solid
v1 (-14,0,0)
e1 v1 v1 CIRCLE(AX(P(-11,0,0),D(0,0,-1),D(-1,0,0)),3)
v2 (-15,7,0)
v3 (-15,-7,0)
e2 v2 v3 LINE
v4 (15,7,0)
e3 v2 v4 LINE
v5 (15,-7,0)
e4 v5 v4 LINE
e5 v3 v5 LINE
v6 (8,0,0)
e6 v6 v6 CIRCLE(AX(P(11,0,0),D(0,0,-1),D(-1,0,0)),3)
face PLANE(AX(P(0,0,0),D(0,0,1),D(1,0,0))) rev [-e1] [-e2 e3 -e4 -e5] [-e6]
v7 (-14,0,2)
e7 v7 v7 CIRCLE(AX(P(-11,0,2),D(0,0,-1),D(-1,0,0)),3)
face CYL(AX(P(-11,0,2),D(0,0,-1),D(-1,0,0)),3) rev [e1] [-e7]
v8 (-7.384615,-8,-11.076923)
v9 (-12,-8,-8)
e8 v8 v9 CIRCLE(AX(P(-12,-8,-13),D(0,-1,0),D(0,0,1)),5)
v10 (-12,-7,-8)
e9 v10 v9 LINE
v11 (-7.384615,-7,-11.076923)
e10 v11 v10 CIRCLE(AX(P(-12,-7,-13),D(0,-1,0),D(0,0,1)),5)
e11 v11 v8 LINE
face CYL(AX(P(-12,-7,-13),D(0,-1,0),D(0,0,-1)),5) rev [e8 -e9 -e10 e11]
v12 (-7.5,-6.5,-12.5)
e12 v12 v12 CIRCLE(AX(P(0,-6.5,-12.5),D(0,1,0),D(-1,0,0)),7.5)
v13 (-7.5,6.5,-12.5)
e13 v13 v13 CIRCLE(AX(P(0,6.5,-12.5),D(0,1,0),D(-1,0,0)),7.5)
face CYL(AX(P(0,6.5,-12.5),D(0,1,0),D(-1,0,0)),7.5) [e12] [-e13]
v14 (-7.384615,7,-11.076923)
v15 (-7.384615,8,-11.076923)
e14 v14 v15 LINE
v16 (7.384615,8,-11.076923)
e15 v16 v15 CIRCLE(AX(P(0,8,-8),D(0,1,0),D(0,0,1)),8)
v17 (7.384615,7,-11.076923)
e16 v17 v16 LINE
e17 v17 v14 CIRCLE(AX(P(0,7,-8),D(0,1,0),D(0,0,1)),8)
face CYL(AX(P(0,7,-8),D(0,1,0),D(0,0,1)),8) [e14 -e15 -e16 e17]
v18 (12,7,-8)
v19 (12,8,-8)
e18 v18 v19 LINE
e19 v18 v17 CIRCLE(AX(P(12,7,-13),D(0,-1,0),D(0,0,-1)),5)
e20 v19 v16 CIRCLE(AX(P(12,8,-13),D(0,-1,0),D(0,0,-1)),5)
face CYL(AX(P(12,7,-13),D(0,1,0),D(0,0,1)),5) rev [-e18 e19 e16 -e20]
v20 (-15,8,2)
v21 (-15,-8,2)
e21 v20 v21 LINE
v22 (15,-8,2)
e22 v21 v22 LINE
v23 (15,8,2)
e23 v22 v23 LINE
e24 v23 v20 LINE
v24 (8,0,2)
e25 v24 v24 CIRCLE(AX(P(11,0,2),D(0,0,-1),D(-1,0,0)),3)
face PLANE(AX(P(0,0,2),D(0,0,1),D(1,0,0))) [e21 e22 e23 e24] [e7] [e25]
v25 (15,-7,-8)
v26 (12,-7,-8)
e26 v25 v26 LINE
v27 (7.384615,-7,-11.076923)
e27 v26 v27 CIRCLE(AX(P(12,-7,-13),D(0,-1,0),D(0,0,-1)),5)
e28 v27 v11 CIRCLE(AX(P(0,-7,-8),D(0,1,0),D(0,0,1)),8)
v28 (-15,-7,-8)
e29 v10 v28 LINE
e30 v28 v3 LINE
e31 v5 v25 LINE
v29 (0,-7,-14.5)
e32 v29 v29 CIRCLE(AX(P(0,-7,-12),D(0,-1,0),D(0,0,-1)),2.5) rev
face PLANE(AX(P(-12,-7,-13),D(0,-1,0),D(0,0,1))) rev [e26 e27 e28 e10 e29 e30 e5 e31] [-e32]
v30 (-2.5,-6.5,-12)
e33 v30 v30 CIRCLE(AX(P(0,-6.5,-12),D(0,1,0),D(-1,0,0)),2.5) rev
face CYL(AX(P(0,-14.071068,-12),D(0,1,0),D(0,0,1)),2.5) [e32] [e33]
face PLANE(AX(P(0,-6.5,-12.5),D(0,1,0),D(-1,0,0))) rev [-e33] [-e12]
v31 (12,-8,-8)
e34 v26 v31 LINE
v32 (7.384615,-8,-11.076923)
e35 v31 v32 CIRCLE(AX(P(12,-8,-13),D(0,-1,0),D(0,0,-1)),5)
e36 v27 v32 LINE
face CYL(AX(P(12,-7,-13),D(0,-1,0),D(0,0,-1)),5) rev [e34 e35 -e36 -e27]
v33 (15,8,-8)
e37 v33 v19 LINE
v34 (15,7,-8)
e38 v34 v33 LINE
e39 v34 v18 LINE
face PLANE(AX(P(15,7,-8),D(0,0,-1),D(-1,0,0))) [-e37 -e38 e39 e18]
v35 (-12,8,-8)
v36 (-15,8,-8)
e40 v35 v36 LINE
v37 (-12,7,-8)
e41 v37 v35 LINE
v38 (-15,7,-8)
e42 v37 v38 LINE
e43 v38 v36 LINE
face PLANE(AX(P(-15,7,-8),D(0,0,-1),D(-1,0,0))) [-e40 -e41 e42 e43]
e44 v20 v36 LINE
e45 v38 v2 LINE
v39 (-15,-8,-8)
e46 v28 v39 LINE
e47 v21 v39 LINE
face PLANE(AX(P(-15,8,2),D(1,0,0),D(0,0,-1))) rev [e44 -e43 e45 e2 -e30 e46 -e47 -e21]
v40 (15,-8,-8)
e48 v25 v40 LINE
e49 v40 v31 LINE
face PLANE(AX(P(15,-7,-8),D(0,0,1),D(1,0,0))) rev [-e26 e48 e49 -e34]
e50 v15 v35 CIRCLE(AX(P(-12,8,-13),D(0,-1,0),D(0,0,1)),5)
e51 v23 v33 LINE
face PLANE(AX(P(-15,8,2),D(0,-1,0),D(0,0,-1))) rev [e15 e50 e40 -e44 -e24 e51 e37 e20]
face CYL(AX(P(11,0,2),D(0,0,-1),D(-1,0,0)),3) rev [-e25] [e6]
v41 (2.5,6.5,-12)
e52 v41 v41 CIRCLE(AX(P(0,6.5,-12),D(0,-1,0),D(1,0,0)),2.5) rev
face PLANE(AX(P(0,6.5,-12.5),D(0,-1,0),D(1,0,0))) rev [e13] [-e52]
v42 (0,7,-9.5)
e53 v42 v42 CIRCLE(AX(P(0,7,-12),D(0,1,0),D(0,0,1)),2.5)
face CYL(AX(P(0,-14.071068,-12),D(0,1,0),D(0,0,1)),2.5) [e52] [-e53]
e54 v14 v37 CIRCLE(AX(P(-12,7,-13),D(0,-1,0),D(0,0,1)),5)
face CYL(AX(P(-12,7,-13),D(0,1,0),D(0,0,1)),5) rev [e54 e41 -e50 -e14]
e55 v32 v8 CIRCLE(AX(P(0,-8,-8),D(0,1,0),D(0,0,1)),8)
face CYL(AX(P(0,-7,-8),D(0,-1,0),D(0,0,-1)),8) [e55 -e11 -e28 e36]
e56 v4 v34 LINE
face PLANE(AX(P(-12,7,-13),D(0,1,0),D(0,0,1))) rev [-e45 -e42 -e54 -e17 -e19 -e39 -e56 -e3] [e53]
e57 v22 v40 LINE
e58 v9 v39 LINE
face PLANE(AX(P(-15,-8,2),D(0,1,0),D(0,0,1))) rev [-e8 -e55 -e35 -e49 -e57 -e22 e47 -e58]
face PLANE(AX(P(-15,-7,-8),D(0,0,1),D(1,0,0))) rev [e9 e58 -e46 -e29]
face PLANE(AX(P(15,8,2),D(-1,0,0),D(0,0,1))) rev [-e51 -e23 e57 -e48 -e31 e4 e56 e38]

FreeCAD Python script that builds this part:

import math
import FreeCAD as App
import Part
import Sketcher

V = App.Vector
Q = App.Units.Quantity

doc = App.newDocument("Part")
params = doc.addObject("Spreadsheet::Sheet", "Params")
for row, (alias, value) in enumerate([
    ("sketch1_width", "30 mm"),
    ("sketch1_height", "16 mm"),
    ("pad1_length", "2 mm"),
    ("sketch2_radius", "5 mm"),
    ("sketch2_radius2", "8 mm"),
    ("sketch2_width", "30 mm"),
    ("sketch2_height", "8 mm"),
    ("pad2_length", "1 mm"),
    ("sketch3_diameter", "5 mm"),
    ("pad3_length", "15 mm"),
    ("sketch4_height", "13 mm"),
    ("sketch4_width", "7.5 mm"),
    ("revolution_angle", "360 deg"),
    ("sketch5_diameter", "6 mm"),
], start=1):
    params.set(f"A{row}", alias)
    params.set(f"B{row}", "=" + value)
    params.setAlias(f"B{row}", alias)

body = doc.addObject("PartDesign::Body", "Body")

sketch1 = body.newObject("Sketcher::SketchObject", "Sketch")
sketch1.AttachmentSupport = (doc.getObject("XY_Plane"), [""])
sketch1.MapMode = "FlatFace"
sketch1.addGeometry([
    Part.LineSegment(V(-15, 8, 0), V(-15, -8, 0)),
    Part.LineSegment(V(-15, -8, 0), V(15, -8, 0)),
    Part.LineSegment(V(15, -8, 0), V(15, 8, 0)),
    Part.LineSegment(V(15, 8, 0), V(-15, 8, 0)),
], False)
sketch1.addConstraint([
    Sketcher.Constraint("Coincident", 0, 2, 1, 1),
    Sketcher.Constraint("Coincident", 1, 2, 2, 1),
    Sketcher.Constraint("Coincident", 2, 2, 3, 1),
    Sketcher.Constraint("Coincident", 3, 2, 0, 1),
    Sketcher.Constraint("Vertical", 0),
    Sketcher.Constraint("Horizontal", 1),
    Sketcher.Constraint("Vertical", 2),
    Sketcher.Constraint("Horizontal", 3),
    Sketcher.Constraint("Symmetric", 0, 2, 2, 2, -1, 1),
    Sketcher.Constraint("DistanceX", 1, 1, 1, 2, Q("30 mm")),
    Sketcher.Constraint("DistanceY", 0, 2, 0, 1, Q("16 mm")),
])
sketch1.setExpression("Constraints[9]", "Params.sketch1_width")
sketch1.setExpression("Constraints[10]", "Params.sketch1_height")
pad1 = body.newObject("PartDesign::Pad", "Pad")
pad1.Profile = sketch1
pad1.setExpression("Length", "Params.pad1_length")

sketch2 = body.newObject("Sketcher::SketchObject", "Sketch001")
sketch2.AttachmentSupport = (doc.getObject("XZ_Plane"), [""])
sketch2.MapMode = "FlatFace"
sketch2.AttachmentOffset = App.Placement(V(0, 0, -8), App.Rotation())
sketch2.addGeometry([
    Part.LineSegment(V(-15, 0, 0), V(15, 0, 0)),
    Part.LineSegment(V(15, 0, 0), V(15, -8, 0)),
    Part.LineSegment(V(15, -8, 0), V(12, -8, 0)),
    Part.ArcOfCircle(Part.Circle(V(12, -13, 0), V(0, 0, 1), 5), math.radians(90), math.radians(157)),
    Part.ArcOfCircle(Part.Circle(V(0, -8, 0), V(0, 0, 1), 8), math.radians(-157), math.radians(-23)),
    Part.ArcOfCircle(Part.Circle(V(-12, -13, 0), V(0, 0, 1), 5), math.radians(23), math.radians(90)),
    Part.LineSegment(V(-12, -8, 0), V(-15, -8, 0)),
    Part.LineSegment(V(-15, -8, 0), V(-15, 0, 0)),
], False)
sketch2.addConstraint([
    Sketcher.Constraint("Coincident", 0, 2, 1, 1),
    Sketcher.Constraint("Coincident", 1, 2, 2, 1),
    Sketcher.Constraint("Tangent", 2, 2, 3, 1),
    Sketcher.Constraint("Tangent", 3, 2, 4, 2),
    Sketcher.Constraint("Tangent", 4, 1, 5, 1),
    Sketcher.Constraint("Tangent", 5, 2, 6, 1),
    Sketcher.Constraint("Coincident", 6, 2, 7, 1),
    Sketcher.Constraint("Coincident", 7, 2, 0, 1),
    Sketcher.Constraint("Horizontal", 0),
    Sketcher.Constraint("Vertical", 1),
    Sketcher.Constraint("Horizontal", 2),
    Sketcher.Constraint("Horizontal", 6),
    Sketcher.Constraint("Vertical", 7),
    Sketcher.Constraint("Equal", 3, 5),
    Sketcher.Constraint("Symmetric", 0, 2, 7, 2, -1, 1),
    Sketcher.Constraint("Symmetric", 3, 3, 5, 3, -2),
    Sketcher.Constraint("Horizontal", 4, 3, 1, 2),
    Sketcher.Constraint("Radius", 3, Q("5 mm")),
    Sketcher.Constraint("Radius", 4, Q("8 mm")),
    Sketcher.Constraint("DistanceX", 0, 1, 0, 2, Q("30 mm")),
    Sketcher.Constraint("DistanceY", 1, 2, 1, 1, Q("8 mm")),
])
sketch2.setExpression("Constraints[17]", "Params.sketch2_radius")
sketch2.setExpression("Constraints[18]", "Params.sketch2_radius2")
sketch2.setExpression("Constraints[19]", "Params.sketch2_width")
sketch2.setExpression("Constraints[20]", "Params.sketch2_height")
pad2 = body.newObject("PartDesign::Pad", "Pad001")
pad2.Profile = sketch2
pad2.setExpression("Length", "Params.pad2_length")
doc.recompute()

mirrored = body.newObject("PartDesign::Mirrored", "Mirrored")
mirrored.Originals = [pad2]
mirrored.MirrorPlane = (doc.getObject("XZ_Plane"), [""])
body.Tip = mirrored

sketch3 = body.newObject("Sketcher::SketchObject", "Sketch002")
sketch3.AttachmentSupport = (doc.getObject("XZ_Plane"), [""])
sketch3.MapMode = "FlatFace"
sketch3.AttachmentOffset = App.Placement(V(0, 0, -8), App.Rotation())
sketch3.addGeometry(Part.Circle(V(0, -12, 0), V(0, 0, 1), 2.5), False)
sketch3.addConstraint([
    Sketcher.Constraint("PointOnObject", 0, 3, -2),
    Sketcher.Constraint("Diameter", 0, Q("5 mm")),
    Sketcher.Constraint("DistanceY", 0, 3, -1, 1, Q("12 mm")),
])
sketch3.setExpression("Constraints[1]", "Params.sketch3_diameter")
pad3 = body.newObject("PartDesign::Pad", "Pad002")
pad3.Profile = sketch3
pad3.setExpression("Length", "Params.pad3_length")

sketch4 = body.newObject("Sketcher::SketchObject", "Sketch003")
sketch4.AttachmentSupport = (doc.getObject("XY_Plane"), [""])
sketch4.MapMode = "FlatFace"
sketch4.AttachmentOffset = App.Placement(V(0, 0, -12.5), App.Rotation())
sketch4.addGeometry([
    Part.LineSegment(V(0, 6, 0), V(0, -6, 0)),
    Part.LineSegment(V(0, -6, 0), V(-8, -6, 0)),
    Part.LineSegment(V(-8, -6, 0), V(-8, 6, 0)),
    Part.LineSegment(V(-8, 6, 0), V(0, 6, 0)),
], False)
sketch4.addConstraint([
    Sketcher.Constraint("Coincident", 0, 2, 1, 1),
    Sketcher.Constraint("Coincident", 1, 2, 2, 1),
    Sketcher.Constraint("Coincident", 2, 2, 3, 1),
    Sketcher.Constraint("Coincident", 3, 2, 0, 1),
    Sketcher.Constraint("Vertical", 0),
    Sketcher.Constraint("Horizontal", 1),
    Sketcher.Constraint("Vertical", 2),
    Sketcher.Constraint("Horizontal", 3),
    Sketcher.Constraint("Symmetric", 0, 2, 3, 2, -1, 1),
    Sketcher.Constraint("DistanceY", 0, 2, 0, 1, Q("13 mm")),
    Sketcher.Constraint("DistanceX", 1, 2, 1, 1, Q("7.5 mm")),
])
sketch4.setExpression("Constraints[9]", "Params.sketch4_height")
sketch4.setExpression("Constraints[10]", "Params.sketch4_width")
revolution = body.newObject("PartDesign::Revolution", "Revolution")
revolution.Profile = sketch4
revolution.ReferenceAxis = (sketch4, ["V_Axis"])
revolution.setExpression("Angle", "Params.revolution_angle")

sketch5 = body.newObject("Sketcher::SketchObject", "Sketch004")
sketch5.AttachmentSupport = (doc.getObject("XY_Plane"), [""])
sketch5.MapMode = "FlatFace"
sketch5.addGeometry([
    Part.Circle(V(11, 0, 0), V(0, 0, 1), 3),
    Part.Circle(V(-11, 0, 0), V(0, 0, 1), 3),
], False)
sketch5.addConstraint([
    Sketcher.Constraint("Equal", 0, 1),
    Sketcher.Constraint("Symmetric", 0, 3, 1, 3, -1, 1),
    Sketcher.Constraint("PointOnObject", 0, 3, -1),
    Sketcher.Constraint("Diameter", 0, Q("6 mm")),
    Sketcher.Constraint("DistanceX", -1, 1, 0, 3, Q("11 mm")),
])
sketch5.setExpression("Constraints[3]", "Params.sketch5_diameter")
pocket1 = body.newObject("PartDesign::Pocket", "Pocket")
pocket1.Profile = sketch5
pocket1.Type = "ThroughAll"
pocket1.Reversed = True

doc.recompute()
